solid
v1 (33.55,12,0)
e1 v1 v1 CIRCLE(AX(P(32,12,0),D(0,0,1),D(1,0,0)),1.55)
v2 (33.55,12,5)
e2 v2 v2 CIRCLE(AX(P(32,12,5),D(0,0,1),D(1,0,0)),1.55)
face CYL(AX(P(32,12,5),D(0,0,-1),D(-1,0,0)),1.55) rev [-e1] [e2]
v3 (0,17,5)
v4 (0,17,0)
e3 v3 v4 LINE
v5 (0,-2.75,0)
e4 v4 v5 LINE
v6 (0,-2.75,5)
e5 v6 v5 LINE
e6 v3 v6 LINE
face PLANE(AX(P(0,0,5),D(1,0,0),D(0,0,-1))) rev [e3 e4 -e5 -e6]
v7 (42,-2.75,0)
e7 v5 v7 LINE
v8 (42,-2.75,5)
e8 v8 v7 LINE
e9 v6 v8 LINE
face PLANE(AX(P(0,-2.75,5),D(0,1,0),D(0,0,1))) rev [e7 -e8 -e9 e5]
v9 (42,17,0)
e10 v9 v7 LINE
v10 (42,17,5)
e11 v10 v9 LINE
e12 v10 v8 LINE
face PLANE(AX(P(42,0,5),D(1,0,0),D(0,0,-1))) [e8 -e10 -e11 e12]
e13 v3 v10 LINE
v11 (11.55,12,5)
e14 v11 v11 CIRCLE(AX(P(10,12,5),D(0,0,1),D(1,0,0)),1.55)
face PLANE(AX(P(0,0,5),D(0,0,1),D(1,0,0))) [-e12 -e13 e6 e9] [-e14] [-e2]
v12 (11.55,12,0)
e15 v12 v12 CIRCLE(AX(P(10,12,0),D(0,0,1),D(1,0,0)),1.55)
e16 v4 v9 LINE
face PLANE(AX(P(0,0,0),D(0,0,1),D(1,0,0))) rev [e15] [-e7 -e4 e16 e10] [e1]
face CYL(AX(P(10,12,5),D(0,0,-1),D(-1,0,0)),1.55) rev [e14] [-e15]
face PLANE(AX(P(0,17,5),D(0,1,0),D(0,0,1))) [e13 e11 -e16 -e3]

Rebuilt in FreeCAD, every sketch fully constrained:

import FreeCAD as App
import Part
import Sketcher

V = App.Vector

doc = App.newDocument("Part")
body = doc.addObject("PartDesign::Body", "Body")

# Sketch on XY plane
sketch1 = body.newObject("Sketcher::SketchObject", "Sketch")
sketch1.AttachmentSupport = (doc.getObject("XY_Plane"), [""])
sketch1.MapMode = "FlatFace"
sketch1.addGeometry([
    Part.LineSegment(V(42, 17, 0), V(0, 17, 0)),  # 0
    Part.LineSegment(V(0, 17, 0), V(0, -2.8, 0)),  # 1
    Part.LineSegment(V(0, -2.8, 0), V(42, -2.8, 0)),  # 2
    Part.LineSegment(V(42, -2.8, 0), V(42, 17, 0)),  # 3
    Part.Circle(V(10, 12, 0), V(0, 0, 1), 1.6),  # 4
    Part.Circle(V(32, 12, 0), V(0, 0, 1), 1.6),  # 5
], False)
sketch1.addConstraint([
    Sketcher.Constraint("Coincident", 0, 2, 1, 1),
    Sketcher.Constraint("Coincident", 1, 2, 2, 1),
    Sketcher.Constraint("Coincident", 2, 2, 3, 1),
    Sketcher.Constraint("Coincident", 3, 2, 0, 1),
    Sketcher.Constraint("Horizontal", 0),
    Sketcher.Constraint("Vertical", 1),
    Sketcher.Constraint("Horizontal", 2),
    Sketcher.Constraint("Vertical", 3),
    Sketcher.Constraint("Equal", 4, 5),
    Sketcher.Constraint("PointOnObject", 0, 2, -2),
    Sketcher.Constraint("Horizontal", 4, 3, 5, 3),
    Sketcher.Constraint("Diameter", 4, 3.1),
    Sketcher.Constraint("DistanceX", 0, 2, 0, 1, 42.0),
    Sketcher.Constraint("DistanceX", -1, 1, 4, 3, 10.0),
    Sketcher.Constraint("DistanceY", -1, 1, 4, 3, 12.0),
    Sketcher.Constraint("DistanceX", -1, 1, 5, 3, 32.0),
    Sketcher.Constraint("DistanceY", -1, 1, 0, 2, 17.0),
    Sketcher.Constraint("DistanceY", 1, 2, 1, 1, 19.75),
])
pad1 = body.newObject("PartDesign::Pad", "Pad")
pad1.Profile = sketch1
pad1.Length = 5

doc.recompute()
